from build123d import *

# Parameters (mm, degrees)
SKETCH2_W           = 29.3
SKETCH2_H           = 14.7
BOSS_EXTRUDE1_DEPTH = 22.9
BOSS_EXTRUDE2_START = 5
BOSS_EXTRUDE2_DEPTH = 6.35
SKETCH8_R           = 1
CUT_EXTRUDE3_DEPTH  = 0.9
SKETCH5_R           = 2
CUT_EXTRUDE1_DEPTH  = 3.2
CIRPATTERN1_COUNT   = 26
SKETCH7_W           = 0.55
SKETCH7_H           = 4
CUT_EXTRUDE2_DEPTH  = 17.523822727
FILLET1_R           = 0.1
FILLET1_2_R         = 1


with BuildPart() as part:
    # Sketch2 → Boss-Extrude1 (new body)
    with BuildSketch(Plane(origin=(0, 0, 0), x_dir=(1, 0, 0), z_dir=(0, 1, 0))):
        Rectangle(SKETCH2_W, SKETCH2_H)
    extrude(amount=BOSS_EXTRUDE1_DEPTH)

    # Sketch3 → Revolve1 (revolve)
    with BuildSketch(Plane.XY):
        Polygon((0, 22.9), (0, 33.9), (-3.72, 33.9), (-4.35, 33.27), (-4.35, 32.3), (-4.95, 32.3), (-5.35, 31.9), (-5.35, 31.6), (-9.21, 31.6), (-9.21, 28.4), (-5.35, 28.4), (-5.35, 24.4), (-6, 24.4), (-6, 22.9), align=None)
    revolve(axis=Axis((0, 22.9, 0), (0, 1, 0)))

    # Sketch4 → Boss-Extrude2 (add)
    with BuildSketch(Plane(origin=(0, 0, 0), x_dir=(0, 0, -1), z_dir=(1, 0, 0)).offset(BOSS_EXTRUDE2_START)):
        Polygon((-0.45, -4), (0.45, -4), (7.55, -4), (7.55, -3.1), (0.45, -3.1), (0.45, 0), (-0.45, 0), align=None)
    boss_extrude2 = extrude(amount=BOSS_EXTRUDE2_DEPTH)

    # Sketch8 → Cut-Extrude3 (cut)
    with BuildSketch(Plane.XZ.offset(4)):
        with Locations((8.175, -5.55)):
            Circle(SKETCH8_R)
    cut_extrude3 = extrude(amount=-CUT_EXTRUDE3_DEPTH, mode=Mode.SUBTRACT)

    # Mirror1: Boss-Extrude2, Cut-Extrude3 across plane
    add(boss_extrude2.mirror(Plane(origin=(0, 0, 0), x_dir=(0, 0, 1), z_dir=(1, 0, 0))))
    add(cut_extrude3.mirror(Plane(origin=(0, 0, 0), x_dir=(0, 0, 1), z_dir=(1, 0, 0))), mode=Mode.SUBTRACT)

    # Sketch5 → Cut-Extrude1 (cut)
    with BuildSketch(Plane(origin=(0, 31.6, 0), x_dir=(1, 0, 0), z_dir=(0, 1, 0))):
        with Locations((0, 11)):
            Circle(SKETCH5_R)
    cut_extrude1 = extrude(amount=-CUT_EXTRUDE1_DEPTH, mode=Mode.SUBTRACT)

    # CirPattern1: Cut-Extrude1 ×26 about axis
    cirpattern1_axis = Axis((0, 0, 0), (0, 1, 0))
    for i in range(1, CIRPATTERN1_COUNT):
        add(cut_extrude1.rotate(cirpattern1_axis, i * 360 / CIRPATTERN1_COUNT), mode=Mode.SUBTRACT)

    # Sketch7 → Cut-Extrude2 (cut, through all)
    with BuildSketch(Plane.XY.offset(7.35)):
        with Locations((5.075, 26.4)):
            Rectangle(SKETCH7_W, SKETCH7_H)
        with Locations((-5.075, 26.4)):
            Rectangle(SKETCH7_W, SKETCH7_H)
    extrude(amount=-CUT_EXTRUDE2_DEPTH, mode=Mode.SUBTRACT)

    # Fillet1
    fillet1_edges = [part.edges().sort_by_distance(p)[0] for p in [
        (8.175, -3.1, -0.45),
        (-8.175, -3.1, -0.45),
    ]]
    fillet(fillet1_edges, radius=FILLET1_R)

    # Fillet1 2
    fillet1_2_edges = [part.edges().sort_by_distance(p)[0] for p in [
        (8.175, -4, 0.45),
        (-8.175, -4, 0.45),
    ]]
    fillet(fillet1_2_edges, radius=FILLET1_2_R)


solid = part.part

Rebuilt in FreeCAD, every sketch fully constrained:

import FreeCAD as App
import Part
import Sketcher

V = App.Vector
Q = App.Units.Quantity


def edges_at(feature, points):
    """Names of the edges that pass closest to the given points."""
    edges = feature.Shape.Edges
    near = lambda p: min(range(len(edges)), key=lambda i: edges[i].distToShape(Part.Vertex(*p))[0])
    return sorted({f"Edge{near(p) + 1}" for p in points})


def add_polygon(sketch, points):
    """Adds a closed chain of lines whose ends are joined by coincident constraints."""
    first, n = sketch.GeometryCount, len(points)
    for a, b in zip(points, points[1:] + points[:1]):
        sketch.addGeometry(Part.LineSegment(App.Vector(*a, 0), App.Vector(*b, 0)), False)
    for i in range(n):
        sketch.addConstraint(Sketcher.Constraint("Coincident", first + i, 2, first + (i + 1) % n, 1))

doc = App.newDocument("Part")
body = doc.addObject("PartDesign::Body", "Body")

# Sketch on XZ plane
sketch1 = doc.addObject("Sketcher::SketchObject", "Sketch")
body.addObject(sketch1)
sketch1.AttachmentSupport = (doc.XZ_Plane, [""])
sketch1.MapMode = "FlatFace"
add_polygon(sketch1, [(-15, -7), (-15, 7), (15, 7), (15, -7)])  # lines 0-3
sketch1.addConstraint(Sketcher.Constraint("Vertical", 0))
sketch1.addConstraint(Sketcher.Constraint("Horizontal", 1))
sketch1.addConstraint(Sketcher.Constraint("Vertical", 2))
sketch1.addConstraint(Sketcher.Constraint("Horizontal", 3))
sketch1.addConstraint(Sketcher.Constraint("Symmetric", 0, 2, 2, 2, -1, 1))
sketch1.addConstraint(Sketcher.Constraint("DistanceX", 1, 1, 1, 2, 29.3))
sketch1.addConstraint(Sketcher.Constraint("DistanceY", 0, 1, 0, 2, 14.7))
pad1 = doc.addObject("PartDesign::Pad", "Pad")
body.addObject(pad1)
pad1.Profile = sketch1
pad1.Length = 22.9
pad1.Reversed = True

# Sketch on XY plane
sketch2 = doc.addObject("Sketcher::SketchObject", "Sketch001")
body.addObject(sketch2)
sketch2.AttachmentSupport = (doc.XY_Plane, [""])
sketch2.MapMode = "FlatFace"
add_polygon(sketch2, [(0, 22.9), (0, 33.9), (-3.72, 33.9), (-4.35, 33.27), (-4.35, 32.3), (-4.95, 32.3), (-5.35, 31.9), (-5.35, 31.6), (-9.21, 31.6), (-9.21, 28.4), (-5.35, 28.4), (-5.35, 24.4), (-6, 24.4), (-6, 22.9)])  # lines 0-13
sketch2.addConstraint(Sketcher.Constraint("Vertical", 0))
sketch2.addConstraint(Sketcher.Constraint("Horizontal", 1))
sketch2.addConstraint(Sketcher.Constraint("Vertical", 3))
sketch2.addConstraint(Sketcher.Constraint("Horizontal", 4))
sketch2.addConstraint(Sketcher.Constraint("Vertical", 6))
sketch2.addConstraint(Sketcher.Constraint("Horizontal", 7))
sketch2.addConstraint(Sketcher.Constraint("Vertical", 8))
sketch2.addConstraint(Sketcher.Constraint("Horizontal", 9))
sketch2.addConstraint(Sketcher.Constraint("Vertical", 10))
sketch2.addConstraint(Sketcher.Constraint("Horizontal", 11))
sketch2.addConstraint(Sketcher.Constraint("Vertical", 12))
sketch2.addConstraint(Sketcher.Constraint("Horizontal", 13))
sketch2.addConstraint(Sketcher.Constraint("PointOnObject", 0, 2, -2))
sketch2.addConstraint(Sketcher.Constraint("Parallel", 2, 5))
sketch2.addConstraint(Sketcher.Constraint("Vertical", 6, 2, 9, 2))
sketch2.addConstraint(Sketcher.Constraint("DistanceX", 13, 1, 13, 2, 6.0))
sketch2.addConstraint(Sketcher.Constraint("DistanceY", 0, 1, 0, 2, 11.0))
sketch2.addConstraint(Sketcher.Constraint("DistanceY", 10, 2, 10, 1, 4.0))
sketch2.addConstraint(Sketcher.Constraint("Angle", 2, Q("-135 deg")))
sketch2.addConstraint(Sketcher.Constraint("DistanceX", 4, 2, 4, 1, 0.6))
sketch2.addConstraint(Sketcher.Constraint("DistanceY", 6, 2, 6, 1, 0.3))
sketch2.addConstraint(Sketcher.Constraint("DistanceY", 8, 2, 8, 1, 3.2))
sketch2.addConstraint(Sketcher.Constraint("DistanceY", 12, 2, 12, 1, 1.5))
sketch2.addConstraint(Sketcher.Constraint("DistanceX", 5, 2, 3, 2, 1.0))
sketch2.addConstraint(Sketcher.Constraint("DistanceX", 1, 2, 1, 1, 3.72))
sketch2.addConstraint(Sketcher.Constraint("DistanceX", 7, 2, 7, 1, 3.86))
sketch2.addConstraint(Sketcher.Constraint("DistanceX", 11, 2, 11, 1, 0.65))
sketch2.addConstraint(Sketcher.Constraint("DistanceY", -1, 1, 0, 2, 33.9))
revolution = doc.addObject("PartDesign::Revolution", "Revolution")
body.addObject(revolution)
revolution.Profile = sketch2
revolution.ReferenceAxis = (sketch2, ["V_Axis"])
revolution.Angle = 360

# Sketch on YZ plane
sketch3 = doc.addObject("Sketcher::SketchObject", "Sketch002")
body.addObject(sketch3)
sketch3.AttachmentSupport = (doc.YZ_Plane, [""])
sketch3.MapMode = "FlatFace"
sketch3.AttachmentOffset = App.Placement(V(0, 0, 5), App.Rotation())
add_polygon(sketch3, [(-4, 0.5), (-4, -7.5), (-3.1, -7.5), (-3.1, -0.5), (0, -0.5), (0, 0.5)])  # lines 0-5
sketch3.addConstraint(Sketcher.Constraint("Vertical", 0))
sketch3.addConstraint(Sketcher.Constraint("Horizontal", 1))
sketch3.addConstraint(Sketcher.Constraint("Vertical", 2))
sketch3.addConstraint(Sketcher.Constraint("Horizontal", 3))
sketch3.addConstraint(Sketcher.Constraint("Vertical", 4))
sketch3.addConstraint(Sketcher.Constraint("Horizontal", 5))
sketch3.addConstraint(Sketcher.Constraint("Symmetric", 3, 2, 4, 2, -1, 1))
sketch3.addConstraint(Sketcher.Constraint("Equal", 1, 4))
sketch3.addConstraint(Sketcher.Constraint("DistanceX", 5, 2, 5, 1, 4.0))
sketch3.addConstraint(Sketcher.Constraint("DistanceY", 0, 2, 0, 1, 8.0))
sketch3.addConstraint(Sketcher.Constraint("DistanceX", 1, 1, 1, 2, 0.9))
pad2 = doc.addObject("PartDesign::Pad", "Pad001")
body.addObject(pad2)
pad2.Profile = sketch3
pad2.Length = 6.35

# Sketch on XZ plane
sketch4 = doc.addObject("Sketcher::SketchObject", "Sketch003")
body.addObject(sketch4)
sketch4.AttachmentSupport = (doc.XZ_Plane, [""])
sketch4.MapMode = "FlatFace"
sketch4.AttachmentOffset = App.Placement(V(0, 0, 4), App.Rotation())
sketch4.addGeometry(Part.Circle(V(8.2, -5.5, 0), V(0, 0, 1), 1), False)
sketch4.addConstraint(Sketcher.Constraint("Diameter", 0, 2.0))
sketch4.addConstraint(Sketcher.Constraint("DistanceY", 0, 3, -1, 1, 5.55))
sketch4.addConstraint(Sketcher.Constraint("DistanceX", -1, 1, 0, 3, 8.175))
pocket1 = doc.addObject("PartDesign::Pocket", "Pocket")
body.addObject(pocket1)
pocket1.Profile = sketch4
pocket1.Length = 0.9
doc.recompute()

mirrored = doc.addObject("PartDesign::Mirrored", "Mirrored")
body.addObject(mirrored)
mirrored.Originals = [pad2, pocket1]
mirrored.MirrorPlane = (doc.YZ_Plane, [""])
body.Tip = mirrored

# Sketch on XZ plane
sketch5 = doc.addObject("Sketcher::SketchObject", "Sketch004")
body.addObject(sketch5)
sketch5.AttachmentSupport = (doc.XZ_Plane, [""])
sketch5.MapMode = "FlatFace"
sketch5.AttachmentOffset = App.Placement(V(0, 0, -31.6), App.Rotation())
sketch5.addGeometry(Part.Circle(V(0, -11, 0), V(0, 0, 1), 2), False)
sketch5.addConstraint(Sketcher.Constraint("PointOnObject", 0, 3, -2))
sketch5.addConstraint(Sketcher.Constraint("Diameter", 0, 4.0))
sketch5.addConstraint(Sketcher.Constraint("DistanceY", 0, 3, -1, 1, 11.0))
pocket2 = doc.addObject("PartDesign::Pocket", "Pocket001")
body.addObject(pocket2)
pocket2.Profile = sketch5
pocket2.Length = 3.2
pocket2.Reversed = True
doc.recompute()

polarpattern = doc.addObject("PartDesign::PolarPattern", "PolarPattern")
body.addObject(polarpattern)
polarpattern.Originals = [pocket2]
polarpattern.Axis = (doc.Y_Axis, [""])
polarpattern.Angle = 360
polarpattern.Occurrences = 26
body.Tip = polarpattern

# Sketch on XY plane
sketch6 = doc.addObject("Sketcher::SketchObject", "Sketch005")
body.addObject(sketch6)
sketch6.AttachmentSupport = (doc.XY_Plane, [""])
sketch6.MapMode = "FlatFace"
sketch6.AttachmentOffset = App.Placement(V(0, 0, 7.35), App.Rotation())
add_polygon(sketch6, [(4.8, 28.4), (4.8, 24.4), (5.3, 24.4), (5.3, 28.4)])  # lines 0-3
add_polygon(sketch6, [(-5.3, 28.4), (-5.3, 24.4), (-4.8, 24.4), (-4.8, 28.4)])  # lines 4-7
sketch6.addConstraint(Sketcher.Constraint("Vertical", 0))
sketch6.addConstraint(Sketcher.Constraint("Horizontal", 1))
sketch6.addConstraint(Sketcher.Constraint("Vertical", 2))
sketch6.addConstraint(Sketcher.Constraint("Horizontal", 3))
sketch6.addConstraint(Sketcher.Constraint("Vertical", 4))
sketch6.addConstraint(Sketcher.Constraint("Horizontal", 5))
sketch6.addConstraint(Sketcher.Constraint("Vertical", 6))
sketch6.addConstraint(Sketcher.Constraint("Horizontal", 7))
sketch6.addConstraint(Sketcher.Constraint("Symmetric", 1, 2, 4, 2, -2))
sketch6.addConstraint(Sketcher.Constraint("Symmetric", 3, 2, 6, 2, -2))
sketch6.addConstraint(Sketcher.Constraint("DistanceY", 0, 2, 0, 1, 4.0))
sketch6.addConstraint(Sketcher.Constraint("DistanceX", 1, 1, 1, 2, 0.55))
sketch6.addConstraint(Sketcher.Constraint("DistanceX", -1, 1, 0, 2, 4.8))
sketch6.addConstraint(Sketcher.Constraint("DistanceY", -1, 1, 0, 2, 24.4))
pocket3 = doc.addObject("PartDesign::Pocket", "Pocket002")
body.addObject(pocket3)
pocket3.Profile = sketch6
pocket3.Type = "ThroughAll"
doc.recompute()

fillet = doc.addObject("PartDesign::Fillet", "Fillet")
body.addObject(fillet)
fillet.Base = (pocket3, edges_at(pocket3, [(8.175, -3.1, -0.45), (-8.175, -3.1, -0.45)]))
fillet.Radius = 0.1
doc.recompute()

fillet2 = doc.addObject("PartDesign::Fillet", "Fillet001")
body.addObject(fillet2)
fillet2.Base = (fillet, edges_at(fillet, [(8.175, -4, 0.45), (-8.175, -4, 0.45)]))
fillet2.Radius = 1

doc.recompute()
